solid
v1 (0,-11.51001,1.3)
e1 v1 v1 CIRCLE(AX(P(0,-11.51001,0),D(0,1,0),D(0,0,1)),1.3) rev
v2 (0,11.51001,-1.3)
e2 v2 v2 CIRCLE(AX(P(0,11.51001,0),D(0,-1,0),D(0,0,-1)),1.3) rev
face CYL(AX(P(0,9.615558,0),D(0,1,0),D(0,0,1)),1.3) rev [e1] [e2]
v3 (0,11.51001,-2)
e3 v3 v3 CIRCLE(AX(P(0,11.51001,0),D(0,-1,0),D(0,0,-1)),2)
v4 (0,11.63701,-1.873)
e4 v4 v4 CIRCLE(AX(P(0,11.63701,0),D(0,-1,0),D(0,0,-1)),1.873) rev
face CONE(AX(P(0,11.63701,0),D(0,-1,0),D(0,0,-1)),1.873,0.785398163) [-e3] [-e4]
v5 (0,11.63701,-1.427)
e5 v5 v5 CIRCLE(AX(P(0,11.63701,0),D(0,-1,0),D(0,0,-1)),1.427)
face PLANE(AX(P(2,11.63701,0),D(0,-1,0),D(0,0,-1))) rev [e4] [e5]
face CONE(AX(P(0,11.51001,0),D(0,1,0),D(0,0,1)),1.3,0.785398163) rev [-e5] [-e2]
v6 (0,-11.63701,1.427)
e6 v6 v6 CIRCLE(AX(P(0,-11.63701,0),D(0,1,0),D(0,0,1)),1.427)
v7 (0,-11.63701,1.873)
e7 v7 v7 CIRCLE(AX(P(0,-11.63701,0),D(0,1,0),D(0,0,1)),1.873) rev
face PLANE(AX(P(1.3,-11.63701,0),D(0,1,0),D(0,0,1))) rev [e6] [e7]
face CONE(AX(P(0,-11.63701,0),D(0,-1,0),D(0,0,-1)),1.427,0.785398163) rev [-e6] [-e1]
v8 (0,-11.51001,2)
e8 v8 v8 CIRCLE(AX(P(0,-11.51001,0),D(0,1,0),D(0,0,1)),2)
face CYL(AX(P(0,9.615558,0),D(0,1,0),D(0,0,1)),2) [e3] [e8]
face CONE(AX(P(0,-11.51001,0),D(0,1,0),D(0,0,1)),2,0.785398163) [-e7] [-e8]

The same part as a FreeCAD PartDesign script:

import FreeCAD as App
import Part
import Sketcher

V = App.Vector
Q = App.Units.Quantity


def edges_at(feature, points):
    """Names of the edges that pass closest to the given points."""
    edges = feature.Shape.Edges
    near = lambda p: min(range(len(edges)), key=lambda i: edges[i].distToShape(Part.Vertex(*p))[0])
    return sorted({f"Edge{near(p) + 1}" for p in points})


def add_polygon(sketch, points):
    """Adds a closed chain of lines whose ends are joined by coincident constraints."""
    first, n = sketch.GeometryCount, len(points)
    for a, b in zip(points, points[1:] + points[:1]):
        sketch.addGeometry(Part.LineSegment(App.Vector(*a, 0), App.Vector(*b, 0)), False)
    for i in range(n):
        sketch.addConstraint(Sketcher.Constraint("Coincident", first + i, 2, first + (i + 1) % n, 1))

doc = App.newDocument("Part")
body = doc.addObject("PartDesign::Body", "Body")

# Sketch on XY plane
sketch1 = body.newObject("Sketcher::SketchObject", "Sketch")
sketch1.AttachmentSupport = (doc.getObject("XY_Plane"), [""])
sketch1.MapMode = "FlatFace"
add_polygon(sketch1, [(1.3, 11.6), (1.3, -11.6), (2, -11.6), (2, 11.6)])  # lines 0-3
sketch1.addConstraint([
    Sketcher.Constraint("Vertical", 0),
    Sketcher.Constraint("Horizontal", 1),
    Sketcher.Constraint("Vertical", 2),
    Sketcher.Constraint("Horizontal", 3),
    Sketcher.Constraint("DistanceX", 1, 1, 1, 2, Q("0.7 mm")),
    Sketcher.Constraint("DistanceX", -1, 1, 1, 2, Q("2 mm")),
    Sketcher.Constraint("DistanceY", 0, 2, 0, 1, Q("23.27402 mm")),
    Sketcher.Constraint("DistanceY", 0, 2, -1, 1, Q("11.63701 mm")),
])
revolution = body.newObject("PartDesign::Revolution", "Revolution")
revolution.Profile = sketch1
revolution.ReferenceAxis = (sketch1, ["V_Axis"])
revolution.Angle = 360
doc.recompute()

chamfer = body.newObject("PartDesign::Chamfer", "Chamfer")
chamfer.Base = (revolution, edges_at(revolution, [
    (-1.3, 11.637, 0),
    (-2, 11.637, 0),
    (-2, -11.637, 0),
    (-1.3, -11.637, 0),
]))
chamfer.Size = 0.127

doc.recompute()
